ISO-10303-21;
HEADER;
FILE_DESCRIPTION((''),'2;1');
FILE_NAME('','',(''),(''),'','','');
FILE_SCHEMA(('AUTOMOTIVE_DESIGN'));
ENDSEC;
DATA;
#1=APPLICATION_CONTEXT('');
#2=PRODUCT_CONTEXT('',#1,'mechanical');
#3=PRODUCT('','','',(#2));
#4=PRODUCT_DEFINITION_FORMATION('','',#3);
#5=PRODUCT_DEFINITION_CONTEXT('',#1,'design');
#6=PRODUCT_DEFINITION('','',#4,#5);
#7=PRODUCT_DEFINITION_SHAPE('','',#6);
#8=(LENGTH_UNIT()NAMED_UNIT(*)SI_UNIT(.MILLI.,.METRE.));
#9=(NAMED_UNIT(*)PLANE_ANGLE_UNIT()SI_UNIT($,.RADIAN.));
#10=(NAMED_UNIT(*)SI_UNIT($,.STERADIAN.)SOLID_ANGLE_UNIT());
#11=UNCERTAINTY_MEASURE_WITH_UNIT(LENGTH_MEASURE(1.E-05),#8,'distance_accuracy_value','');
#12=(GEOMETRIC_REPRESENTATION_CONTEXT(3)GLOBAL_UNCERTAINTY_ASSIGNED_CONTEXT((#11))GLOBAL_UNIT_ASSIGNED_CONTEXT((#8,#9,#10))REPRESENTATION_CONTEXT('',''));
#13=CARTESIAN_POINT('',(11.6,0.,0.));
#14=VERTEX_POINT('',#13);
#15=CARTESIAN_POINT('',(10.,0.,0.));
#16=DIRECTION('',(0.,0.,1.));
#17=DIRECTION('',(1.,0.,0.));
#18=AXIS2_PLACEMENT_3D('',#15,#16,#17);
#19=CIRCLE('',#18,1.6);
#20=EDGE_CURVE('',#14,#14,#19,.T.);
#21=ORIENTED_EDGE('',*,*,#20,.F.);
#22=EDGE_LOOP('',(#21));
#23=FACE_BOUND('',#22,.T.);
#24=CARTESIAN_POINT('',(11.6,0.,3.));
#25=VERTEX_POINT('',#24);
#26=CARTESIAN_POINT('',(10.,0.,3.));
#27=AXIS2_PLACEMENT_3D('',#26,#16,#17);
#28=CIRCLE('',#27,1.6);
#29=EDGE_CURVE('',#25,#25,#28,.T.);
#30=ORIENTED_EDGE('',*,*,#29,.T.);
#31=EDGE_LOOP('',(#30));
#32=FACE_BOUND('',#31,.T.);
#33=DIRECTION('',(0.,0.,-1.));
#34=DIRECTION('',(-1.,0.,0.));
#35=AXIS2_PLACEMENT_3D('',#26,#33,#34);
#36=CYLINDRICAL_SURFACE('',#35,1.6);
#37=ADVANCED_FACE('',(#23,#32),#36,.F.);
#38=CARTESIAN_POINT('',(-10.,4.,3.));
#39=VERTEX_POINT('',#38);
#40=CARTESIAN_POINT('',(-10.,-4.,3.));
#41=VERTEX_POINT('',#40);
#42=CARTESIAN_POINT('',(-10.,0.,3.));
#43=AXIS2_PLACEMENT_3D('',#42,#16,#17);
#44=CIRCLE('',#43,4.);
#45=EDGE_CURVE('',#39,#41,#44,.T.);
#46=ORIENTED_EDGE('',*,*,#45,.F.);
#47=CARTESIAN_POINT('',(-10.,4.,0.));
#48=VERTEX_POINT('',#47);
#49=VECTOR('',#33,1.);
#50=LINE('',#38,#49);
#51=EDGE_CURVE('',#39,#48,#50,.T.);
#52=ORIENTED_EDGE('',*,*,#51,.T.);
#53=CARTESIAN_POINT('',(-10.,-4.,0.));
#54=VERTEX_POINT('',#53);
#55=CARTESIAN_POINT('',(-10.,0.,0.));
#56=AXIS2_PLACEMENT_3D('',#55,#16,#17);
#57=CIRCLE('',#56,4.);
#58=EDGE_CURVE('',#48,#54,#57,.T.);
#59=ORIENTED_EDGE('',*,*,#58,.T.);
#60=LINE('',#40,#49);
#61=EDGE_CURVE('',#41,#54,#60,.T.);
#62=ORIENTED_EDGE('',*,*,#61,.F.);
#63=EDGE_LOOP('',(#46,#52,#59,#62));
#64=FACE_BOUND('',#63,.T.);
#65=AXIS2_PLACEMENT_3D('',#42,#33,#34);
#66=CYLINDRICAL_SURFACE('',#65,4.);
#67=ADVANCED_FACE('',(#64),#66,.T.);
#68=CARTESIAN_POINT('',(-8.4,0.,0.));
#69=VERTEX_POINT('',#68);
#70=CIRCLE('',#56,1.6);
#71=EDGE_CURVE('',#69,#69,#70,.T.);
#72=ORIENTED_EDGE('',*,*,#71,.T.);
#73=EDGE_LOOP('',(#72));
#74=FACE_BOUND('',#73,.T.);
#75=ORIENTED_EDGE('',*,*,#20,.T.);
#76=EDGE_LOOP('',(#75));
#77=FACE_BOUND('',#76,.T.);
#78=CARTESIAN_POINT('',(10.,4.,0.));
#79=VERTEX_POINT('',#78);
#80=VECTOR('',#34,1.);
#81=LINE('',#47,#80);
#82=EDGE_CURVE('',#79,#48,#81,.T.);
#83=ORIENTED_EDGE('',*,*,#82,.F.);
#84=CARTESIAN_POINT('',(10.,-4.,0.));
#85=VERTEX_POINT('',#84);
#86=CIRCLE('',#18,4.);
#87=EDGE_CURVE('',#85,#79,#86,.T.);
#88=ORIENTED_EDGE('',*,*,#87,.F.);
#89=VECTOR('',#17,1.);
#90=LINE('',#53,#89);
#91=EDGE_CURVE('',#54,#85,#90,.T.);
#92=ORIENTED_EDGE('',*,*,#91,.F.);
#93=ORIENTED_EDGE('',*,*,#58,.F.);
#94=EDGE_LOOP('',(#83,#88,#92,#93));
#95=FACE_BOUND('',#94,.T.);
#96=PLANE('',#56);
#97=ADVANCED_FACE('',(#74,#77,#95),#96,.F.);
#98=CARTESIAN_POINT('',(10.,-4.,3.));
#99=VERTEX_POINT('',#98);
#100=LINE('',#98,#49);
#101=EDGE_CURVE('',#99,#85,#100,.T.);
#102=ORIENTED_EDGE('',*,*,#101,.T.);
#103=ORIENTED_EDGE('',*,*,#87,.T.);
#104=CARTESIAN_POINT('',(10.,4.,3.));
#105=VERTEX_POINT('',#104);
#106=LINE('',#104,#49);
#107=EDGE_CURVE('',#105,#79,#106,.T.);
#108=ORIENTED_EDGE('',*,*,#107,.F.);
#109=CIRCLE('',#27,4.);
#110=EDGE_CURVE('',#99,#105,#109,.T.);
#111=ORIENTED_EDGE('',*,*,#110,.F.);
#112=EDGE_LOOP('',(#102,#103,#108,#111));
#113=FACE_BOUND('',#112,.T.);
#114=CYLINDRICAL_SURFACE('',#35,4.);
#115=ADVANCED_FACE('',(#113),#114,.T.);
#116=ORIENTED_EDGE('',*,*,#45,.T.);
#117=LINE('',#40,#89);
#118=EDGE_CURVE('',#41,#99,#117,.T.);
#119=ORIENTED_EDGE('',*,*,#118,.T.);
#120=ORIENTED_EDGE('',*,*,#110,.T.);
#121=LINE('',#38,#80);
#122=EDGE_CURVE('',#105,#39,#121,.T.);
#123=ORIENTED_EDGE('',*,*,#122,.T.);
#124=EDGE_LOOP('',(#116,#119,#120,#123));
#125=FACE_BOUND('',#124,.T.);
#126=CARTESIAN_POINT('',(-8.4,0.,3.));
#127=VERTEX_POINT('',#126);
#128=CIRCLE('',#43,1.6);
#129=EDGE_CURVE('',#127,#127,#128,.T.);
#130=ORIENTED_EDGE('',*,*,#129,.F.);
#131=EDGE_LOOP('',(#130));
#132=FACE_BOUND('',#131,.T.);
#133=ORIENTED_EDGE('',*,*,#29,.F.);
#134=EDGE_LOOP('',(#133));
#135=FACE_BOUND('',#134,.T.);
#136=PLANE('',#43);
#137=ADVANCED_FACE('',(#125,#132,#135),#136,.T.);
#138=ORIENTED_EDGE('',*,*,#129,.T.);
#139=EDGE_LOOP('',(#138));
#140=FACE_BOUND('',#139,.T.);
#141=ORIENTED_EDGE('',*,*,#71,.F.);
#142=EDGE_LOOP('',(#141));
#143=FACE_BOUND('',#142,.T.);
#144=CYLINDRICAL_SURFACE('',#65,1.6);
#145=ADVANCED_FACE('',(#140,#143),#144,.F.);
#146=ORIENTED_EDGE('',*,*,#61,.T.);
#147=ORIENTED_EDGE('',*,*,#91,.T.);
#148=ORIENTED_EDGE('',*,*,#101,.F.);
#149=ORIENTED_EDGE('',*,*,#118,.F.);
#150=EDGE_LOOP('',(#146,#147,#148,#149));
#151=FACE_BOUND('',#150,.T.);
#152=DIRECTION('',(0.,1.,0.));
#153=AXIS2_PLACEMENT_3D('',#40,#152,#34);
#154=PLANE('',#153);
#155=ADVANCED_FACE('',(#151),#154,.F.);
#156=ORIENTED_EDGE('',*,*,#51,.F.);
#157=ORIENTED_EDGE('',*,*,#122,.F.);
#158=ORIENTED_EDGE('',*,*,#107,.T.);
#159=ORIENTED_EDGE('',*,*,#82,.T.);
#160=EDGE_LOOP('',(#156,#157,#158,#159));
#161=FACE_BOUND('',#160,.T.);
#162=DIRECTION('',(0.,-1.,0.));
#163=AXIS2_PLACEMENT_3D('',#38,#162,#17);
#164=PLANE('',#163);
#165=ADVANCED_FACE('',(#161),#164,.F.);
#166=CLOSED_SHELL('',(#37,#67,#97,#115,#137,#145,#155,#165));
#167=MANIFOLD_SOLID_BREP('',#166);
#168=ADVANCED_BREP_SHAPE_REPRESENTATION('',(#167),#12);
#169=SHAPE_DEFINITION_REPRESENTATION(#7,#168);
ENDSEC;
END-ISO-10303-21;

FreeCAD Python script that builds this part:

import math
import FreeCAD as App
import Part
import Sketcher
Q = App.Units.Quantity

doc = App.newDocument("Part")
body = doc.addObject("PartDesign::Body", "Body")

sketch1 = doc.addObject("Sketcher::SketchObject", "Sketch")
body.addObject(sketch1)
sketch1.AttachmentSupport = (doc.XY_Plane, [""])
sketch1.MapMode = "FlatFace"
sketch1.addGeometry(Part.LineSegment(App.Vector(10, 4, 0), App.Vector(-10, 4, 0)), False)
sketch1.addGeometry(Part.ArcOfCircle(Part.Circle(App.Vector(-10, 0, 0), App.Vector(0, 0, 1), 4), math.radians(90), math.radians(270)), False)
sketch1.addGeometry(Part.LineSegment(App.Vector(-10, -4, 0), App.Vector(10, -4, 0)), False)
sketch1.addGeometry(Part.ArcOfCircle(Part.Circle(App.Vector(10, 0, 0), App.Vector(0, 0, 1), 4), math.radians(-90), math.radians(90)), False)
sketch1.addGeometry(Part.Circle(App.Vector(10, 0, 0), App.Vector(0, 0, 1), 1.6), False)
sketch1.addGeometry(Part.Circle(App.Vector(-10, 0, 0), App.Vector(0, 0, 1), 1.6), False)
sketch1.addConstraint(Sketcher.Constraint("Tangent", 0, 2, 1, 1))
sketch1.addConstraint(Sketcher.Constraint("Tangent", 1, 2, 2, 1))
sketch1.addConstraint(Sketcher.Constraint("Tangent", 2, 2, 3, 1))
sketch1.addConstraint(Sketcher.Constraint("Tangent", 3, 2, 0, 1))
sketch1.addConstraint(Sketcher.Constraint("Horizontal", 0))
sketch1.addConstraint(Sketcher.Constraint("Horizontal", 2))
sketch1.addConstraint(Sketcher.Constraint("Coincident", 4, 3, 3, 3))
sketch1.addConstraint(Sketcher.Constraint("Coincident", 5, 3, 1, 3))
sketch1.addConstraint(Sketcher.Constraint("Equal", 4, 5))
sketch1.addConstraint(Sketcher.Constraint("Symmetric", 1, 3, 3, 3, -1, 1))
sketch1.addConstraint(Sketcher.Constraint("Radius", 1, Q("4 mm")))
sketch1.addConstraint(Sketcher.Constraint("Diameter", 4, Q("3.2 mm")))
sketch1.addConstraint(Sketcher.Constraint("DistanceX", 0, 2, 0, 1, Q("20 mm")))
pad1 = doc.addObject("PartDesign::Pad", "Pad")
body.addObject(pad1)
pad1.Profile = sketch1
pad1.Length = 3

doc.recompute()
